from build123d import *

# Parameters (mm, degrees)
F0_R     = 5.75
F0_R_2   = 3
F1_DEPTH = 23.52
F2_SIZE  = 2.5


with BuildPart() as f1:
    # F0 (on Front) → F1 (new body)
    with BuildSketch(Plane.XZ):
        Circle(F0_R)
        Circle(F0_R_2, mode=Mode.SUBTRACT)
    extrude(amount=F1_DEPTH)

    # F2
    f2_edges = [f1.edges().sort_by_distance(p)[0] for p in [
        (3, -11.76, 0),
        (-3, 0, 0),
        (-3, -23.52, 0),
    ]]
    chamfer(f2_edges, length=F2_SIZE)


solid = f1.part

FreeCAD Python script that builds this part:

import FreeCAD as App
import Part
import Sketcher
from FreeCAD import Vector


def edges_at(feature, points):
    """Names of the edges that pass closest to the given points."""
    edges = feature.Shape.Edges
    near = lambda p: min(range(len(edges)), key=lambda i: edges[i].distToShape(Part.Vertex(*p))[0])
    return sorted({f"Edge{near(p) + 1}" for p in points})

doc = App.newDocument("Part")
body = doc.addObject("PartDesign::Body", "Body")

# Sketch on XZ plane
sketch1 = doc.addObject("Sketcher::SketchObject", "Sketch")
body.addObject(sketch1)
sketch1.AttachmentSupport = (doc.XZ_Plane, [""])
sketch1.MapMode = "FlatFace"
sketch1.addGeometry([
    Part.Circle(Vector(0, 0, 0), Vector(0, 0, 1), 5.8),
    Part.Circle(Vector(0, 0, 0), Vector(0, 0, 1), 3),
], False)
sketch1.addConstraint([
    Sketcher.Constraint("Coincident", 0, 3, -1, 1),
    Sketcher.Constraint("Coincident", 1, 3, -1, 1),
    Sketcher.Constraint("Diameter", 1, 6.0),
    Sketcher.Constraint("Diameter", 0, 11.5),
])
pad1 = doc.addObject("PartDesign::Pad", "Pad")
body.addObject(pad1)
pad1.Profile = sketch1
pad1.Length = 23.52
doc.recompute()

chamfer = doc.addObject("PartDesign::Chamfer", "Chamfer")
body.addObject(chamfer)
chamfer.Base = (pad1, edges_at(pad1, [(3, -11.76, 0), (-3, 0, 0), (-3, -23.52, 0)]))
chamfer.Size = 2.5

doc.recompute()
